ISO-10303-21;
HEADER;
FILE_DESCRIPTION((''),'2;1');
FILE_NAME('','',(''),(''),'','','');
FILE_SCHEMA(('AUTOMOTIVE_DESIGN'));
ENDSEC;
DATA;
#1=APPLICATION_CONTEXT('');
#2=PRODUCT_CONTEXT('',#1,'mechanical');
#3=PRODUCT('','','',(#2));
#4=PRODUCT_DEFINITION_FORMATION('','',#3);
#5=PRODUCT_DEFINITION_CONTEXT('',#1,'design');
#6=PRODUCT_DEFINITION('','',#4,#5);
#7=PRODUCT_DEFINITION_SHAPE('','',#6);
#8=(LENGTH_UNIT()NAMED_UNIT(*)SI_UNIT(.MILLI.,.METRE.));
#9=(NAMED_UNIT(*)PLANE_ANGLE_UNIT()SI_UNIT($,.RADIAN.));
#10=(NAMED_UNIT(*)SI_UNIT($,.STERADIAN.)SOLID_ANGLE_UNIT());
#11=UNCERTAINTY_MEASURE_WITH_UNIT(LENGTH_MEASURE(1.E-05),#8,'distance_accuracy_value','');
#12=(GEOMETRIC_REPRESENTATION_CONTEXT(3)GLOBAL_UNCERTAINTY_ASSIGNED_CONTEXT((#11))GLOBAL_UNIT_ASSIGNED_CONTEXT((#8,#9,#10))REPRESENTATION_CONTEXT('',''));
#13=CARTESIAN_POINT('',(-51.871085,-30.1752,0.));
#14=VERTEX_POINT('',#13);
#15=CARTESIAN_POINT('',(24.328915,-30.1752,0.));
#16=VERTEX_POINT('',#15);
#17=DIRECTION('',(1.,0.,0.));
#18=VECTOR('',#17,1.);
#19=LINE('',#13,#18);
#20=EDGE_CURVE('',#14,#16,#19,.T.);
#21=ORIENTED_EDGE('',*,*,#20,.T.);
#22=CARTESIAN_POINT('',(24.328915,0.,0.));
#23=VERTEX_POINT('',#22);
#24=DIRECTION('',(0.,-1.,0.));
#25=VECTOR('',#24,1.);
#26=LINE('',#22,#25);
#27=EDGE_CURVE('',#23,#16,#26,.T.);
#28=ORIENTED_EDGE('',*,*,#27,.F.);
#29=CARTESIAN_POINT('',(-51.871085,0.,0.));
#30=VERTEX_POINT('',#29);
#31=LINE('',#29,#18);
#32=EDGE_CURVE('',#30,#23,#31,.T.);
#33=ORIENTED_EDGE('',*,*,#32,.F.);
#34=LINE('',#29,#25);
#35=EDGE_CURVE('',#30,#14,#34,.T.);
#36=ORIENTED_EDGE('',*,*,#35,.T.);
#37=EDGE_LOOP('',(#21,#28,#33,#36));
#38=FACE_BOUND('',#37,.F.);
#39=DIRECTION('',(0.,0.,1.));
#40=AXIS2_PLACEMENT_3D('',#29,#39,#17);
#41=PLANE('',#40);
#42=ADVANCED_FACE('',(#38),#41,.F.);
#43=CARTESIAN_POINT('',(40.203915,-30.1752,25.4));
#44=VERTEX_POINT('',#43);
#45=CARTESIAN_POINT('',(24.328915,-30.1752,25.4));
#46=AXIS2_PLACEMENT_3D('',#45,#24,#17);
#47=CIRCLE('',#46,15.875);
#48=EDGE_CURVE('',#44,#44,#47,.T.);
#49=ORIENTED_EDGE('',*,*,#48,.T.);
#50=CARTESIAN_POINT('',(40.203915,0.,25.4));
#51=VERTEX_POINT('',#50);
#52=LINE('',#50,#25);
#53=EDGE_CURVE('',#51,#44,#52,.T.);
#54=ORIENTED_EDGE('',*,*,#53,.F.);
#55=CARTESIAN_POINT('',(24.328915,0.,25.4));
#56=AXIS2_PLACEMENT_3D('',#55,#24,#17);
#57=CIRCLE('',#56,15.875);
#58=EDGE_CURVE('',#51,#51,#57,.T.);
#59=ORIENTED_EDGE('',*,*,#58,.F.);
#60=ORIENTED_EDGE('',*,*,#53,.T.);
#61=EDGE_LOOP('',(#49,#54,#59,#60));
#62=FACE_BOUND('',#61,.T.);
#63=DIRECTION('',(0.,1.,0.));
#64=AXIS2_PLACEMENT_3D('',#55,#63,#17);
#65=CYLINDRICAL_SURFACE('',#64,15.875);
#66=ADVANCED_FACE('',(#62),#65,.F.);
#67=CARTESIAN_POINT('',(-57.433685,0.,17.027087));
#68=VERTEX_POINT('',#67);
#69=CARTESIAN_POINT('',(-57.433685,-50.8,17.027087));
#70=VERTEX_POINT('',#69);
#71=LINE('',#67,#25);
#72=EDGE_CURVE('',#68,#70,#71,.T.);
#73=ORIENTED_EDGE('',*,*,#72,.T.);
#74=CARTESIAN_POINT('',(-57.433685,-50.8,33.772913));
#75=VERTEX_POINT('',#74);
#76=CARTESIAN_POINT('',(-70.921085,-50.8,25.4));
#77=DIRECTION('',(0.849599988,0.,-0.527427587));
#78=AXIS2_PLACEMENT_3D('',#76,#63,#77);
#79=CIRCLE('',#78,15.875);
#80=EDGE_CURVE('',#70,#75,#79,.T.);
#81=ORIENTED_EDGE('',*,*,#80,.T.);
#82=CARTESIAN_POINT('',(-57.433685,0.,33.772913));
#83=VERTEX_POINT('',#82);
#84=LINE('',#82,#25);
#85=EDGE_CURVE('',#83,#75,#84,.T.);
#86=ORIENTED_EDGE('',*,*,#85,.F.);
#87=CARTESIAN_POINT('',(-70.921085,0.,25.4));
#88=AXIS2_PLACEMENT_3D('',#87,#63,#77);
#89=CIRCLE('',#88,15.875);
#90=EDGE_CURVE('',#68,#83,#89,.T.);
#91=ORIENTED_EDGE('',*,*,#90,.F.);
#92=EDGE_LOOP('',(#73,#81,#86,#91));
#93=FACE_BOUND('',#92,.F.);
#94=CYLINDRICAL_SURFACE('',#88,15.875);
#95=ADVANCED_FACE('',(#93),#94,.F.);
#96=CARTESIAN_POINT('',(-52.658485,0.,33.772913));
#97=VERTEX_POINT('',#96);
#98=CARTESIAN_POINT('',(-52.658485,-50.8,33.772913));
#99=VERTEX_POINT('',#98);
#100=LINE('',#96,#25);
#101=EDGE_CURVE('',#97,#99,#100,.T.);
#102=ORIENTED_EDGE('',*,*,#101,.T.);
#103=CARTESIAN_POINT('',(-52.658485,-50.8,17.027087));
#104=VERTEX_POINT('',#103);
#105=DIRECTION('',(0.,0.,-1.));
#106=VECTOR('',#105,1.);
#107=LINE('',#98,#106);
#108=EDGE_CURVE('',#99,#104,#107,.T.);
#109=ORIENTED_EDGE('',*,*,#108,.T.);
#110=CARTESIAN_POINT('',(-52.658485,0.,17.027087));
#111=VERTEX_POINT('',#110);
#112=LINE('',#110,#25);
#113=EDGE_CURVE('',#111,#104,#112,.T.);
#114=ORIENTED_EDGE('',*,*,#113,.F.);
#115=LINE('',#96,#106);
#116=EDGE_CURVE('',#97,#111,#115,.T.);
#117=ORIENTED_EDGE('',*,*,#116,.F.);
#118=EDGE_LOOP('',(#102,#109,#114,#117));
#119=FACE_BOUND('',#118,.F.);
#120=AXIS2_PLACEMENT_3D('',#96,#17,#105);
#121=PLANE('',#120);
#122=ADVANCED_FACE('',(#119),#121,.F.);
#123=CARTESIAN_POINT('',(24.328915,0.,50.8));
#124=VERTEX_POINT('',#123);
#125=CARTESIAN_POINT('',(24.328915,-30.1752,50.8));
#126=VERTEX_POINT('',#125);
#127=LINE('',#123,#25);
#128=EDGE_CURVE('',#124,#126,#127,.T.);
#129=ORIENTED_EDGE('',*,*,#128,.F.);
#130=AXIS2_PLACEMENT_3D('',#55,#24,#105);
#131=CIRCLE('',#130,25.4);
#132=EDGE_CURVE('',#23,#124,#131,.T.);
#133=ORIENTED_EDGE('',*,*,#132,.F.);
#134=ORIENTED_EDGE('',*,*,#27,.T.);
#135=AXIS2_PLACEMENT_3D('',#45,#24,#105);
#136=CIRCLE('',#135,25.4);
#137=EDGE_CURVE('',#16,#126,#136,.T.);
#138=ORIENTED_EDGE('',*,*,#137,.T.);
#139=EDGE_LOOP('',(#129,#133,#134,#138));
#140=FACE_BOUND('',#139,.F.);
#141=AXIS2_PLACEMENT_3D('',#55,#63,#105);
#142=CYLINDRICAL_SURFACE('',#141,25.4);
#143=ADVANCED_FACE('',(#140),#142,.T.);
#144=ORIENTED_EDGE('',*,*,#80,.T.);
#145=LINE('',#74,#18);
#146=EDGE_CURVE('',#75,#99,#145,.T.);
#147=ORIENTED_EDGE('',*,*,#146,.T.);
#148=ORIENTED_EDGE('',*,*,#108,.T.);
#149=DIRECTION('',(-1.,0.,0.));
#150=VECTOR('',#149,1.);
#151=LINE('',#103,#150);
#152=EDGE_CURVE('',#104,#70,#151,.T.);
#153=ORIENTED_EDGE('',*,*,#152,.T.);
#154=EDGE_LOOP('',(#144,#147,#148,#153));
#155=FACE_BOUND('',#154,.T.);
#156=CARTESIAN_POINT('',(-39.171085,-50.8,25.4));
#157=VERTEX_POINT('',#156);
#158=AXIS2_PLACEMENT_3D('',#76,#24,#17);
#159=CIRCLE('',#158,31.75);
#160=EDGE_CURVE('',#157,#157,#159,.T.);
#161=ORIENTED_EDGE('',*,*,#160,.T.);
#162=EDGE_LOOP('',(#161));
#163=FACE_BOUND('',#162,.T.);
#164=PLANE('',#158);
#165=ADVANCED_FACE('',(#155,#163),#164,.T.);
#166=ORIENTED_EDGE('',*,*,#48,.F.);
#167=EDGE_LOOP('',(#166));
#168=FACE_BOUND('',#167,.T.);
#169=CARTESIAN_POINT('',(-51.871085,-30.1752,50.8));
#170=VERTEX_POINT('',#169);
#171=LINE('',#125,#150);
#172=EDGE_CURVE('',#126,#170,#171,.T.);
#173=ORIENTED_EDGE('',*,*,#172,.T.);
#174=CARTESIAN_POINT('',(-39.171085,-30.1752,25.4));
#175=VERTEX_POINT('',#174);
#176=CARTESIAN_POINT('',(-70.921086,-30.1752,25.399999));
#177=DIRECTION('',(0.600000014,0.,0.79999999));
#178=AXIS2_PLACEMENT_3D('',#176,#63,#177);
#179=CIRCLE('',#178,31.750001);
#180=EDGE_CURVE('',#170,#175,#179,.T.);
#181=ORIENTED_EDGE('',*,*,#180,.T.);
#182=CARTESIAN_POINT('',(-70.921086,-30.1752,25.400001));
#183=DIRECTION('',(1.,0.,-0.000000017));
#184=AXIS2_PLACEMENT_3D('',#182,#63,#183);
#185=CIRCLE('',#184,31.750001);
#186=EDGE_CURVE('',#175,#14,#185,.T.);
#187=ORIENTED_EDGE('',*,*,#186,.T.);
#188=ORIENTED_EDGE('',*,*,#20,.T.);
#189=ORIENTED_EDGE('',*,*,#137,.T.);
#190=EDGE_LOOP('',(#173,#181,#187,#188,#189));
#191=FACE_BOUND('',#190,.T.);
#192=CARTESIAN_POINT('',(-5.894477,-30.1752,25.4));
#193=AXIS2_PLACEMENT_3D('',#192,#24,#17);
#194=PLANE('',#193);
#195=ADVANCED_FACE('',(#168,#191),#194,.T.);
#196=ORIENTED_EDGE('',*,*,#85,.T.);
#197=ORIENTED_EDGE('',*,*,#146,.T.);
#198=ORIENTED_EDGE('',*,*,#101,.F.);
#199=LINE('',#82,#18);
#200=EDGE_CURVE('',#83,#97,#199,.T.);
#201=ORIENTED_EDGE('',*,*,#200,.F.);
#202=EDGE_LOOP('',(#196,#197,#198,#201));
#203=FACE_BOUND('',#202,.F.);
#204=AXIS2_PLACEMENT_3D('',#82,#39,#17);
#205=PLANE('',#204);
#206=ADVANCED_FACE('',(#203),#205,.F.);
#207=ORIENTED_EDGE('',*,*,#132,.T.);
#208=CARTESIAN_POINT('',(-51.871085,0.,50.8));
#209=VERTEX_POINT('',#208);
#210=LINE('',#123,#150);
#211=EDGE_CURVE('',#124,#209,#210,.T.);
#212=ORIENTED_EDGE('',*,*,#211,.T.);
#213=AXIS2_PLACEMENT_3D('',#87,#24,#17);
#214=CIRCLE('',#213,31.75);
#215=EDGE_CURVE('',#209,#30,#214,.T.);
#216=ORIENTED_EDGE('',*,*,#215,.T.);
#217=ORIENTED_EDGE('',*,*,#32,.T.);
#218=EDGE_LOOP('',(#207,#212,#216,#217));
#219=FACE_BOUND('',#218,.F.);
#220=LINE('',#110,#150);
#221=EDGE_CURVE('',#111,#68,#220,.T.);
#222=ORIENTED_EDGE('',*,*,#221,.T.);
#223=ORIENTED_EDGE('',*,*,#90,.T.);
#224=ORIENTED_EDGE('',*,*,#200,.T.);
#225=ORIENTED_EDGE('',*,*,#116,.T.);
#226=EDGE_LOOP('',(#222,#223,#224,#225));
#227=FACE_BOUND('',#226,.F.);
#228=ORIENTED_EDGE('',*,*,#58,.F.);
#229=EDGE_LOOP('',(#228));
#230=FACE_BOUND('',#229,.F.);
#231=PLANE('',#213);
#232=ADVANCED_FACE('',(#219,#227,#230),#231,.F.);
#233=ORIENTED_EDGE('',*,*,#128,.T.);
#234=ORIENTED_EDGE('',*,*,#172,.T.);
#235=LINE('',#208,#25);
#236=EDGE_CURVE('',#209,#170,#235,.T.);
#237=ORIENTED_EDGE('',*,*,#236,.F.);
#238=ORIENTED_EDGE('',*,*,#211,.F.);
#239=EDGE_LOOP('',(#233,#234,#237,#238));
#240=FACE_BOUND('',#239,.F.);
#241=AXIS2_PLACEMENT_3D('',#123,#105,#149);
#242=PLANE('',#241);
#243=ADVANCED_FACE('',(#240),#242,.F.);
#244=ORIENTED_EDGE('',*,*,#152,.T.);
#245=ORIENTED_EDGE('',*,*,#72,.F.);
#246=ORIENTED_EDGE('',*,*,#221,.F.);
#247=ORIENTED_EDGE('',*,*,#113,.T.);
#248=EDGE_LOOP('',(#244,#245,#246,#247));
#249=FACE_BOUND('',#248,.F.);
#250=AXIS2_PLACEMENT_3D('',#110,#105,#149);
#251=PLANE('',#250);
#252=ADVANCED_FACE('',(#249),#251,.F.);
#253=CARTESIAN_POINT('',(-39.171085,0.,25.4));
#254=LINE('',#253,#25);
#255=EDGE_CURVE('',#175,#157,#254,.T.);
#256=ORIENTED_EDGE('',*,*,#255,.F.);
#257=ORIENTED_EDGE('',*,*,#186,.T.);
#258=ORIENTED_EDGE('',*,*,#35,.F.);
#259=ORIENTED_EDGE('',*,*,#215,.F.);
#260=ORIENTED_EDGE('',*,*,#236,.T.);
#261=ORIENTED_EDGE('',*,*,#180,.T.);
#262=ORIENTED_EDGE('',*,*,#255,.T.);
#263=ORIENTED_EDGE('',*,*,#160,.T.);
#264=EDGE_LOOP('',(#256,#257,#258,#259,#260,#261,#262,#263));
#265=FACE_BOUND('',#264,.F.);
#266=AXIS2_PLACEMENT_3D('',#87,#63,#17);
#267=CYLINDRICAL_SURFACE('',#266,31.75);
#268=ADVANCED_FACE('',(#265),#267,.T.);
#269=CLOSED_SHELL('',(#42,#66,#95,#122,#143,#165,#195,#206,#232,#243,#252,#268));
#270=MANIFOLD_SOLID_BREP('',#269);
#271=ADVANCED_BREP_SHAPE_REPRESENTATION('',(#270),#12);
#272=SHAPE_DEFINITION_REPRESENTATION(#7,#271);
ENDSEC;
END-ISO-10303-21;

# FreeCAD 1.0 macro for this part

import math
import FreeCAD as App
import Part
import Sketcher
Q = App.Units.Quantity

doc = App.newDocument("Part")
body = doc.addObject("PartDesign::Body", "Body")

sketch1 = body.newObject("Sketcher::SketchObject", "Sketch")
sketch1.AttachmentSupport = (doc.getObject("XZ_Plane"), [""])
sketch1.MapMode = "FlatFace"
sketch1.addGeometry([
    Part.ArcOfCircle(Part.Circle(App.Vector(-71, 25, 0), App.Vector(0, 0, 1), 32), math.radians(-53), math.radians(0)),
    Part.LineSegment(App.Vector(-52, 0, 0), App.Vector(24, 0, 0)),
    Part.ArcOfCircle(Part.Circle(App.Vector(24, 25, 0), App.Vector(0, 0, 1), 25), math.radians(-90), math.radians(90)),
    Part.LineSegment(App.Vector(24, 51, 0), App.Vector(-52, 51, 0)),
    Part.ArcOfCircle(Part.Circle(App.Vector(-71, 25, 0), App.Vector(0, 0, 1), 32), math.radians(0), math.radians(53)),
    Part.Circle(App.Vector(24, 25, 0), App.Vector(0, 0, 1), 16),
], False)
sketch1.addConstraint([
    Sketcher.Constraint("Coincident", 0, 1, 1, 1),
    Sketcher.Constraint("Tangent", 1, 2, 2, 1),
    Sketcher.Constraint("Tangent", 2, 2, 3, 1),
    Sketcher.Constraint("Coincident", 3, 2, 4, 2),
    Sketcher.Constraint("Tangent", 4, 1, 0, 2),
    Sketcher.Constraint("Horizontal", 1),
    Sketcher.Constraint("Horizontal", 3),
    Sketcher.Constraint("Coincident", 5, 3, 2, 3),
    Sketcher.Constraint("Equal", 0, 4),
    Sketcher.Constraint("PointOnObject", 0, 1, -1),
    Sketcher.Constraint("Horizontal", 0, 3, 2, 3),
    Sketcher.Constraint("Horizontal", 5, 3, 4, 1),
    Sketcher.Constraint("Radius", 2, Q("1 in")),
    Sketcher.Constraint("Diameter", 5, Q("1.25 in")),
    Sketcher.Constraint("DistanceX", 1, 1, 1, 2, Q("3 in")),
    Sketcher.Constraint("Radius", 0, Q("1.25 in")),
    Sketcher.Constraint("DistanceX", 0, 3, -1, 1, Q("70.921086 mm")),
])
pad1 = body.newObject("PartDesign::Pad", "Pad")
pad1.Profile = sketch1
pad1.Length = Q("1.188 in")

sketch2 = body.newObject("Sketcher::SketchObject", "Sketch001")
sketch2.AttachmentSupport = (doc.getObject("XZ_Plane"), [""])
sketch2.MapMode = "FlatFace"
sketch2.addGeometry([
    Part.Circle(App.Vector(-70.9, 25.4, 0), App.Vector(0, 0, 1), 31.8),
    Part.LineSegment(App.Vector(-52.7, 17, 0), App.Vector(-57.4, 17, 0)),
    Part.ArcOfCircle(Part.Circle(App.Vector(-70.9, 25.4, 0), App.Vector(0, 0, 1), 15.9), math.radians(32), math.radians(328)),
    Part.LineSegment(App.Vector(-57.4, 33.8, 0), App.Vector(-52.7, 33.8, 0)),
    Part.LineSegment(App.Vector(-52.7, 33.8, 0), App.Vector(-52.7, 17, 0)),
], False)
sketch2.addConstraint([
    Sketcher.Constraint("Coincident", 1, 2, 2, 2),
    Sketcher.Constraint("Coincident", 2, 1, 3, 1),
    Sketcher.Constraint("Coincident", 3, 2, 4, 1),
    Sketcher.Constraint("Coincident", 4, 2, 1, 1),
    Sketcher.Constraint("Horizontal", 1),
    Sketcher.Constraint("Horizontal", 3),
    Sketcher.Constraint("Vertical", 4),
    Sketcher.Constraint("Coincident", 2, 3, 0, 3),
    Sketcher.Constraint("Vertical", 1, 2, 2, 1),
    Sketcher.Constraint("Diameter", 0, Q("2.5 in")),
    Sketcher.Constraint("DistanceY", -1, 1, 0, 3, Q("1 in")),
    Sketcher.Constraint("Radius", 2, Q("0.625 in")),
    Sketcher.Constraint("DistanceX", 1, 2, 1, 1, Q("0.188 in")),
    Sketcher.Constraint("DistanceX", 2, 3, 1, 2, Q("0.531 in")),
    Sketcher.Constraint("DistanceX", 0, 3, -1, 1, Q("70.921085 mm")),
])
pad2 = body.newObject("PartDesign::Pad", "Pad001")
pad2.Profile = sketch2
pad2.Length = Q("2 in")

doc.recompute()
